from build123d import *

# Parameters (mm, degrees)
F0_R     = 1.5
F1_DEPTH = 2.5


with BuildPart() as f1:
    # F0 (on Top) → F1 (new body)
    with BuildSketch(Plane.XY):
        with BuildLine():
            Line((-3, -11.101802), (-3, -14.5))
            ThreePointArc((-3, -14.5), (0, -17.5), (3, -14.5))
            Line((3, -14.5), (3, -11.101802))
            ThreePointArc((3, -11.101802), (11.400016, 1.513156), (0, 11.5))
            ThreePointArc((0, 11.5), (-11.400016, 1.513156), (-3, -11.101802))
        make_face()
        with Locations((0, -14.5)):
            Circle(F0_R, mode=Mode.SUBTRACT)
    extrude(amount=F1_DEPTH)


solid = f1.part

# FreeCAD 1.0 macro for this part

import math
import FreeCAD as App
import Part
import Sketcher

doc = App.newDocument("Part")
body = doc.addObject("PartDesign::Body", "Body")

# Sketch on XY plane
sketch1 = body.newObject("Sketcher::SketchObject", "Sketch")
sketch1.AttachmentSupport = (doc.getObject("XY_Plane"), [""])
sketch1.MapMode = "FlatFace"
sketch1.addGeometry(Part.LineSegment(App.Vector(-3, -11.101802, 0), App.Vector(-3, -14.5, 0)), False)
sketch1.addGeometry(Part.ArcOfCircle(Part.Circle(App.Vector(0, -14.5, 0), App.Vector(0, 0, 1), 3), math.radians(180), math.radians(360)), False)
sketch1.addGeometry(Part.LineSegment(App.Vector(3, -14.5, 0), App.Vector(3, -11.101802, 0)), False)
sketch1.addGeometry(Part.ArcOfCircle(Part.Circle(App.Vector(0, 0, 0), App.Vector(0, 0, 1), 11.5), math.radians(-74.878336), math.radians(90.000001)), False)
sketch1.addGeometry(Part.ArcOfCircle(Part.Circle(App.Vector(0, 0, 0), App.Vector(0, 0, 1), 11.5), math.radians(89.999999), math.radians(254.878336)), False)
sketch1.addGeometry(Part.Circle(App.Vector(0, -14.5, 0), App.Vector(0, 0, 1), 1.5), False)
sketch1.addConstraint(Sketcher.Constraint("Tangent", 0, 2, 1, 1))
sketch1.addConstraint(Sketcher.Constraint("Tangent", 1, 2, 2, 1))
sketch1.addConstraint(Sketcher.Constraint("Coincident", 2, 2, 3, 1))
sketch1.addConstraint(Sketcher.Constraint("Tangent", 3, 2, 4, 1))
sketch1.addConstraint(Sketcher.Constraint("Coincident", 4, 2, 0, 1))
sketch1.addConstraint(Sketcher.Constraint("Vertical", 0))
sketch1.addConstraint(Sketcher.Constraint("Vertical", 2))
sketch1.addConstraint(Sketcher.Constraint("Coincident", 3, 3, -1, 1))
sketch1.addConstraint(Sketcher.Constraint("Coincident", 5, 3, 1, 3))
sketch1.addConstraint(Sketcher.Constraint("Equal", 3, 4))
sketch1.addConstraint(Sketcher.Constraint("PointOnObject", 1, 3, -2))
sketch1.addConstraint(Sketcher.Constraint("PointOnObject", 3, 2, -2))
sketch1.addConstraint(Sketcher.Constraint("Diameter", 5, 3.0))
sketch1.addConstraint(Sketcher.Constraint("Radius", 1, 3.0))
sketch1.addConstraint(Sketcher.Constraint("Radius", 3, 11.5))
sketch1.addConstraint(Sketcher.Constraint("DistanceY", 1, 3, 3, 2, 26.0))
pad1 = body.newObject("PartDesign::Pad", "Pad")
pad1.Profile = sketch1
pad1.Length = 2.5

doc.recompute()
